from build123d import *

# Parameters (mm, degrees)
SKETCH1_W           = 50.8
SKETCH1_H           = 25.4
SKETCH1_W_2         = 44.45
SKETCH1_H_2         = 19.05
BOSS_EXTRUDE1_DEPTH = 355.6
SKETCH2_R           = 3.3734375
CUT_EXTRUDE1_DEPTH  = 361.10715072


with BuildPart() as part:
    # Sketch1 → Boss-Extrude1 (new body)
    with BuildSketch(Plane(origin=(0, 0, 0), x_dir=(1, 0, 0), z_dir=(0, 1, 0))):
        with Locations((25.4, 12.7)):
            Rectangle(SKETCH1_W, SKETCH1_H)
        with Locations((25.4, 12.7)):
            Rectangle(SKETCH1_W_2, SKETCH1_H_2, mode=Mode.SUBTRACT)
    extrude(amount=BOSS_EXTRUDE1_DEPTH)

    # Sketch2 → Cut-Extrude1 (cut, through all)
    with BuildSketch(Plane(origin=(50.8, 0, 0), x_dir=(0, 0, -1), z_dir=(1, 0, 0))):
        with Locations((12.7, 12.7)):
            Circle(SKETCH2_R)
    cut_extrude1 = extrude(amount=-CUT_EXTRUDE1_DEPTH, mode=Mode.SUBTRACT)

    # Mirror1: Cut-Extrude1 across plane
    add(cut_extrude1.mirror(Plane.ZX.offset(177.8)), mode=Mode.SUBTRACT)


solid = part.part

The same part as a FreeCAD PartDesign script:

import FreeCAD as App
import Part
import Sketcher

V = App.Vector
Q = App.Units.Quantity


def add_polygon(sketch, points):
    """Adds a closed chain of lines whose ends are joined by coincident constraints."""
    first, n = sketch.GeometryCount, len(points)
    for a, b in zip(points, points[1:] + points[:1]):
        sketch.addGeometry(Part.LineSegment(App.Vector(*a, 0), App.Vector(*b, 0)), False)
    for i in range(n):
        sketch.addConstraint(Sketcher.Constraint("Coincident", first + i, 2, first + (i + 1) % n, 1))

doc = App.newDocument("Part")
body = doc.addObject("PartDesign::Body", "Body")

sketch1 = body.newObject("Sketcher::SketchObject", "Sketch")
sketch1.AttachmentSupport = (doc.getObject("XZ_Plane"), [""])
sketch1.MapMode = "FlatFace"
add_polygon(sketch1, [(0, -25), (0, 0), (51, 0), (51, -25)])
add_polygon(sketch1, [(48, -3), (3, -3), (3, -22), (48, -22)])
sketch1.addConstraint([
    Sketcher.Constraint("Vertical", 0),
    Sketcher.Constraint("Horizontal", 1),
    Sketcher.Constraint("Vertical", 2),
    Sketcher.Constraint("Horizontal", 3),
    Sketcher.Constraint("Horizontal", 4),
    Sketcher.Constraint("Vertical", 5),
    Sketcher.Constraint("Horizontal", 6),
    Sketcher.Constraint("Vertical", 7),
    Sketcher.Constraint("Coincident", 0, 2, -1, 1),
    Sketcher.Constraint("DistanceX", 1, 1, 1, 2, Q("2 in")),
    Sketcher.Constraint("DistanceY", 0, 1, 0, 2, Q("1 in")),
    Sketcher.Constraint("DistanceX", 4, 2, 4, 1, Q("1.75 in")),
    Sketcher.Constraint("DistanceY", 5, 2, 5, 1, Q("0.75 in")),
    Sketcher.Constraint("DistanceX", -1, 1, 4, 2, Q("0.125 in")),
    Sketcher.Constraint("DistanceY", 4, 2, -1, 1, Q("0.125 in")),
])
pad1 = body.newObject("PartDesign::Pad", "Pad")
pad1.Profile = sketch1
pad1.Length = Q("14 in")
pad1.Reversed = True

sketch2 = body.newObject("Sketcher::SketchObject", "Sketch001")
sketch2.AttachmentSupport = (doc.getObject("YZ_Plane"), [""])
sketch2.MapMode = "FlatFace"
sketch2.AttachmentOffset = App.Placement(V(0, 0, 2 * 25.4), App.Rotation())
sketch2.addGeometry(Part.Circle(V(12.7, -12.7, 0), V(0, 0, 1), 3.4), False)
sketch2.addConstraint([
    Sketcher.Constraint("Diameter", 0, Q("0.265625 in")),
    Sketcher.Constraint("DistanceX", -1, 1, 0, 3, Q("0.5 in")),
    Sketcher.Constraint("DistanceY", 0, 3, -1, 1, Q("0.5 in")),
])
pocket1 = body.newObject("PartDesign::Pocket", "Pocket")
pocket1.Profile = sketch2
pocket1.Type = "ThroughAll"
doc.recompute()

datumplane = body.newObject("PartDesign::Plane", "DatumPlane")
datumplane.AttachmentSupport = (doc.getObject("XZ_Plane"), [""])
datumplane.MapMode = "FlatFace"
datumplane.AttachmentOffset = App.Placement(V(0, 0, -7 * 25.4), App.Rotation())
mirrored = body.newObject("PartDesign::Mirrored", "Mirrored")
mirrored.Originals = [pocket1]
mirrored.MirrorPlane = (datumplane, [""])
body.Tip = mirrored

doc.recompute()
